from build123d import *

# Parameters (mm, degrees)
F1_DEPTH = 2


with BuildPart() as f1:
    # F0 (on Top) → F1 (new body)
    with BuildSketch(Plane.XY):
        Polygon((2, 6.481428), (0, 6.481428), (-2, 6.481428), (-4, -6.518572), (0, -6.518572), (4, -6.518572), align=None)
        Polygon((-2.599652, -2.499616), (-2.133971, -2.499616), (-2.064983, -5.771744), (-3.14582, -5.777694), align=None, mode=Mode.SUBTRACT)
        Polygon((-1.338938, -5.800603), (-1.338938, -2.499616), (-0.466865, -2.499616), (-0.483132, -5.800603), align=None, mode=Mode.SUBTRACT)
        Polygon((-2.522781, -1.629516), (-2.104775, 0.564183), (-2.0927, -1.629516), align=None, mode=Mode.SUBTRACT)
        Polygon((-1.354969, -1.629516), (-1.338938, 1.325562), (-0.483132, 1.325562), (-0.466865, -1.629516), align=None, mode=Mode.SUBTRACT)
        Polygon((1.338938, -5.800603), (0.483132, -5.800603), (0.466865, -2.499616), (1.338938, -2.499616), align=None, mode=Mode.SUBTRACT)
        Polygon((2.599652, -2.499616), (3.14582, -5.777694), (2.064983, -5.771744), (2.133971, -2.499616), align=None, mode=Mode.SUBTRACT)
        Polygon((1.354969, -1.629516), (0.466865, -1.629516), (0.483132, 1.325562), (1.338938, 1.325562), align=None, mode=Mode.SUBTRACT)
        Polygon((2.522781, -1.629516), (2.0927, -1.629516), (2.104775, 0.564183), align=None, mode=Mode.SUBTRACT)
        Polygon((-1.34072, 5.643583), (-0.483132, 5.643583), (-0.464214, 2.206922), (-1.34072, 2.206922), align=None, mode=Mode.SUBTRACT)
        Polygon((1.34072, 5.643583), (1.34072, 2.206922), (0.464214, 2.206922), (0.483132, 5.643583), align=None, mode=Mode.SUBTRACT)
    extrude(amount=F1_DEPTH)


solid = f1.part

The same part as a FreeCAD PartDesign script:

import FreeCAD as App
import Part
import Sketcher

V = App.Vector

doc = App.newDocument("Part")
body = doc.addObject("PartDesign::Body", "Body")

# Sketch on XY plane
sketch1 = doc.addObject("Sketcher::SketchObject", "Sketch")
body.addObject(sketch1)
sketch1.AttachmentSupport = (doc.XY_Plane, [""])
sketch1.MapMode = "FlatFace"
sketch1.addGeometry([
    Part.LineSegment(V(2, 6.48, 0), V(-2, 6.48, 0)),  # 0
    Part.LineSegment(V(-2, 6.48, 0), V(-4, -6.52, 0)),  # 1
    Part.LineSegment(V(-4, -6.52, 0), V(4, -6.52, 0)),  # 2
    Part.LineSegment(V(4, -6.52, 0), V(2, 6.48, 0)),  # 3
    Part.LineSegment(V(-3.15, -5.78, 0), V(-2.6, -2.5, 0)),  # 4
    Part.LineSegment(V(-2.6, -2.5, 0), V(-2.13, -2.5, 0)),  # 5
    Part.LineSegment(V(-2.13, -2.5, 0), V(-2.06, -5.77, 0)),  # 6
    Part.LineSegment(V(-2.06, -5.77, 0), V(-3.15, -5.78, 0)),  # 7
    Part.LineSegment(V(-0.48, -5.8, 0), V(-1.34, -5.8, 0)),  # 8
    Part.LineSegment(V(-1.34, -5.8, 0), V(-1.34, -2.5, 0)),  # 9
    Part.LineSegment(V(-1.34, -2.5, 0), V(-0.47, -2.5, 0)),  # 10
    Part.LineSegment(V(-0.47, -2.5, 0), V(-0.48, -5.8, 0)),  # 11
    Part.LineSegment(V(-2.09, -1.63, 0), V(-2.52, -1.63, 0)),  # 12
    Part.LineSegment(V(-2.52, -1.63, 0), V(-2.1, 0.56, 0)),  # 13
    Part.LineSegment(V(-2.1, 0.56, 0), V(-2.09, -1.63, 0)),  # 14
    Part.LineSegment(V(-0.47, -1.63, 0), V(-1.35, -1.63, 0)),  # 15
    Part.LineSegment(V(-1.35, -1.63, 0), V(-1.34, 1.33, 0)),  # 16
    Part.LineSegment(V(-1.34, 1.33, 0), V(-0.48, 1.33, 0)),  # 17
    Part.LineSegment(V(-0.48, 1.33, 0), V(-0.47, -1.63, 0)),  # 18
    Part.LineSegment(V(1.34, -2.5, 0), V(1.34, -5.8, 0)),  # 19
    Part.LineSegment(V(1.34, -5.8, 0), V(0.48, -5.8, 0)),  # 20
    Part.LineSegment(V(0.48, -5.8, 0), V(0.47, -2.5, 0)),  # 21
    Part.LineSegment(V(0.47, -2.5, 0), V(1.34, -2.5, 0)),  # 22
    Part.LineSegment(V(2.13, -2.5, 0), V(2.6, -2.5, 0)),  # 23
    Part.LineSegment(V(2.6, -2.5, 0), V(3.15, -5.78, 0)),  # 24
    Part.LineSegment(V(3.15, -5.78, 0), V(2.06, -5.77, 0)),  # 25
    Part.LineSegment(V(2.06, -5.77, 0), V(2.13, -2.5, 0)),  # 26
    Part.LineSegment(V(1.34, 1.33, 0), V(1.35, -1.63, 0)),  # 27
    Part.LineSegment(V(1.35, -1.63, 0), V(0.47, -1.63, 0)),  # 28
    Part.LineSegment(V(0.47, -1.63, 0), V(0.48, 1.33, 0)),  # 29
    Part.LineSegment(V(0.48, 1.33, 0), V(1.34, 1.33, 0)),  # 30
    Part.LineSegment(V(2.1, 0.56, 0), V(2.52, -1.63, 0)),  # 31
    Part.LineSegment(V(2.52, -1.63, 0), V(2.09, -1.63, 0)),  # 32
    Part.LineSegment(V(2.09, -1.63, 0), V(2.1, 0.56, 0)),  # 33
    Part.LineSegment(V(-1.34, 2.21, 0), V(-1.34, 5.64, 0)),  # 34
    Part.LineSegment(V(-1.34, 5.64, 0), V(-0.48, 5.64, 0)),  # 35
    Part.LineSegment(V(-0.48, 5.64, 0), V(-0.46, 2.21, 0)),  # 36
    Part.LineSegment(V(-0.46, 2.21, 0), V(-1.34, 2.21, 0)),  # 37
    Part.LineSegment(V(0.48, 5.64, 0), V(1.34, 5.64, 0)),  # 38
    Part.LineSegment(V(1.34, 5.64, 0), V(1.34, 2.21, 0)),  # 39
    Part.LineSegment(V(1.34, 2.21, 0), V(0.46, 2.21, 0)),  # 40
    Part.LineSegment(V(0.46, 2.21, 0), V(0.48, 5.64, 0)),  # 41
], False)
sketch1.addConstraint([
    Sketcher.Constraint("Coincident", 0, 2, 1, 1),
    Sketcher.Constraint("Coincident", 1, 2, 2, 1),
    Sketcher.Constraint("Coincident", 2, 2, 3, 1),
    Sketcher.Constraint("Coincident", 3, 2, 0, 1),
    Sketcher.Constraint("Coincident", 4, 2, 5, 1),
    Sketcher.Constraint("Coincident", 5, 2, 6, 1),
    Sketcher.Constraint("Coincident", 6, 2, 7, 1),
    Sketcher.Constraint("Coincident", 7, 2, 4, 1),
    Sketcher.Constraint("Coincident", 8, 2, 9, 1),
    Sketcher.Constraint("Coincident", 9, 2, 10, 1),
    Sketcher.Constraint("Coincident", 10, 2, 11, 1),
    Sketcher.Constraint("Coincident", 11, 2, 8, 1),
    Sketcher.Constraint("Coincident", 12, 2, 13, 1),
    Sketcher.Constraint("Coincident", 13, 2, 14, 1),
    Sketcher.Constraint("Coincident", 14, 2, 12, 1),
    Sketcher.Constraint("Coincident", 15, 2, 16, 1),
    Sketcher.Constraint("Coincident", 16, 2, 17, 1),
    Sketcher.Constraint("Coincident", 17, 2, 18, 1),
    Sketcher.Constraint("Coincident", 18, 2, 15, 1),
    Sketcher.Constraint("Coincident", 19, 2, 20, 1),
    Sketcher.Constraint("Coincident", 20, 2, 21, 1),
    Sketcher.Constraint("Coincident", 21, 2, 22, 1),
    Sketcher.Constraint("Coincident", 22, 2, 19, 1),
    Sketcher.Constraint("Coincident", 23, 2, 24, 1),
    Sketcher.Constraint("Coincident", 24, 2, 25, 1),
    Sketcher.Constraint("Coincident", 25, 2, 26, 1),
    Sketcher.Constraint("Coincident", 26, 2, 23, 1),
    Sketcher.Constraint("Coincident", 27, 2, 28, 1),
    Sketcher.Constraint("Coincident", 28, 2, 29, 1),
    Sketcher.Constraint("Coincident", 29, 2, 30, 1),
    Sketcher.Constraint("Coincident", 30, 2, 27, 1),
    Sketcher.Constraint("Coincident", 31, 2, 32, 1),
    Sketcher.Constraint("Coincident", 32, 2, 33, 1),
    Sketcher.Constraint("Coincident", 33, 2, 31, 1),
    Sketcher.Constraint("Coincident", 34, 2, 35, 1),
    Sketcher.Constraint("Coincident", 35, 2, 36, 1),
    Sketcher.Constraint("Coincident", 36, 2, 37, 1),
    Sketcher.Constraint("Coincident", 37, 2, 34, 1),
    Sketcher.Constraint("Coincident", 38, 2, 39, 1),
    Sketcher.Constraint("Coincident", 39, 2, 40, 1),
    Sketcher.Constraint("Coincident", 40, 2, 41, 1),
    Sketcher.Constraint("Coincident", 41, 2, 38, 1),
    Sketcher.Constraint("Horizontal", 0),
    Sketcher.Constraint("Horizontal", 2),
    Sketcher.Constraint("Horizontal", 5),
    Sketcher.Constraint("Horizontal", 8),
    Sketcher.Constraint("Vertical", 9),
    Sketcher.Constraint("Horizontal", 10),
    Sketcher.Constraint("Horizontal", 12),
    Sketcher.Constraint("Horizontal", 15),
    Sketcher.Constraint("Horizontal", 17),
    Sketcher.Constraint("Vertical", 19),
    Sketcher.Constraint("Horizontal", 20),
    Sketcher.Constraint("Horizontal", 22),
    Sketcher.Constraint("Horizontal", 23),
    Sketcher.Constraint("Horizontal", 28),
    Sketcher.Constraint("Horizontal", 30),
    Sketcher.Constraint("Horizontal", 32),
    Sketcher.Constraint("Vertical", 34),
    Sketcher.Constraint("Horizontal", 35),
    Sketcher.Constraint("Horizontal", 37),
    Sketcher.Constraint("Horizontal", 38),
    Sketcher.Constraint("Vertical", 39),
    Sketcher.Constraint("Horizontal", 40),
    Sketcher.Constraint("Symmetric", 8, 2, 19, 2, -2),
    Sketcher.Constraint("Symmetric", 10, 2, 21, 2, -2),
    Sketcher.Constraint("Symmetric", 4, 2, 23, 2, -2),
    Sketcher.Constraint("Symmetric", 7, 2, 24, 2, -2),
    Sketcher.Constraint("Symmetric", 6, 2, 25, 2, -2),
    Sketcher.Constraint("Symmetric", 15, 2, 27, 2, -2),
    Sketcher.Constraint("Symmetric", 17, 2, 29, 2, -2),
    Sketcher.Constraint("Symmetric", 12, 2, 31, 2, -2),
    Sketcher.Constraint("Symmetric", 13, 2, 33, 2, -2),
    Sketcher.Constraint("Symmetric", 34, 2, 38, 2, -2),
    Sketcher.Constraint("Symmetric", 36, 2, 40, 2, -2),
    Sketcher.Constraint("Perpendicular", 7, 14),
    Sketcher.Constraint("Parallel", 14, 18),
    Sketcher.Constraint("Perpendicular", 25, 29),
    Sketcher.Constraint("Parallel", 29, 33),
    Sketcher.Constraint("Parallel", 18, 36),
    Sketcher.Constraint("Parallel", 33, 41),
    Sketcher.Constraint("Horizontal", 5, 2, 9, 2),
    Sketcher.Constraint("Horizontal", 14, 2, 15, 2),
    Sketcher.Constraint("Vertical", 9, 2, 16, 2),
    Sketcher.Constraint("Vertical", 11, 2, 17, 2),
    Sketcher.Constraint("Vertical", 10, 2, 18, 2),
    Sketcher.Constraint("Vertical", 20, 2, 29, 2),
    Sketcher.Constraint("Vertical", 22, 2, 30, 2),
    Sketcher.Constraint("Vertical", 17, 2, 35, 2),
    Sketcher.Constraint("Equal", 5, 23),
    Sketcher.Constraint("Equal", 1, 3),
    Sketcher.Constraint("DistanceX", 0, 2, 0, 1, 4.0),
    Sketcher.Constraint("DistanceX", 2, 1, 2, 2, 8.0),
    Sketcher.Constraint("DistanceX", 0, 2, -1, 1, 2.0),
    Sketcher.Constraint("DistanceY", 1, 2, 0, 2, 13.0),
    Sketcher.Constraint("DistanceX", 5, 2, 15, 2, 0.779002),
    Sketcher.Constraint("DistanceX", 5, 1, 5, 2, 0.465681),
    Sketcher.Constraint("DistanceX", 12, 2, 12, 1, 0.430081),
    Sketcher.Constraint("DistanceY", 34, 1, 34, 2, 3.436661),
    Sketcher.Constraint("DistanceX", 14, 2, -1, 1, 2.0927),
    Sketcher.Constraint("DistanceY", 4, 2, 12, 2, 0.8701),
    Sketcher.Constraint("DistanceX", 12, 2, 6, 2, 0.457798),
    Sketcher.Constraint("DistanceY", 12, 2, 13, 2, 2.193699),
    Sketcher.Constraint("Distance", 13, 2.233169),
    Sketcher.Constraint("Distance", 16, 2.955121),
    Sketcher.Constraint("DistanceX", 8, 2, 8, 1, 0.855806),
    Sketcher.Constraint("DistanceX", 15, 2, 15, 1, 0.888104),
    Sketcher.Constraint("DistanceX", 35, 1, 35, 2, 0.857588),
    Sketcher.Constraint("DistanceY", 9, 1, 9, 2, 3.300987),
    Sketcher.Constraint("DistanceY", -1, 1, 0, 2, 6.481428),
    Sketcher.Constraint("DistanceX", 4, 2, -1, 1, 2.599652),
    Sketcher.Constraint("DistanceX", 7, 2, -1, 1, 3.14582),
    Sketcher.Constraint("DistanceY", -1, 1, 16, 2, 1.325562),
    Sketcher.Constraint("DistanceY", -1, 1, 36, 2, 2.206922),
    Sketcher.Constraint("DistanceY", 6, 2, 0, 2, 12.253172),
])
pad1 = doc.addObject("PartDesign::Pad", "Pad")
body.addObject(pad1)
pad1.Profile = sketch1
pad1.Length = 2

doc.recompute()
